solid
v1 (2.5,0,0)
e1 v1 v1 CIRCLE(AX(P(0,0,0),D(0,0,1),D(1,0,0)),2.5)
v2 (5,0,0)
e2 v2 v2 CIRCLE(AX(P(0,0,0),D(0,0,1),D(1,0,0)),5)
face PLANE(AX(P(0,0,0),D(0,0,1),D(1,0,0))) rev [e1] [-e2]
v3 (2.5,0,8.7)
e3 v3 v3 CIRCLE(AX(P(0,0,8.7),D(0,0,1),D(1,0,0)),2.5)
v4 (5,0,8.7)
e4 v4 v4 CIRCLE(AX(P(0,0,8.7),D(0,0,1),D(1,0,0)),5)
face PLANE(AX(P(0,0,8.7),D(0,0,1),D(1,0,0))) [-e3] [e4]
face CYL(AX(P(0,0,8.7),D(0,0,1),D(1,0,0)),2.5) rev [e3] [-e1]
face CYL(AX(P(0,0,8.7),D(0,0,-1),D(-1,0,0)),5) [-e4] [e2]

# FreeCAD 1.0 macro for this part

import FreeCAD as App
import Part
import Sketcher
from FreeCAD import Vector
Q = App.Units.Quantity

doc = App.newDocument("Part")
body = doc.addObject("PartDesign::Body", "Body")

# Sketch on XY plane
sketch1 = doc.addObject("Sketcher::SketchObject", "Sketch")
body.addObject(sketch1)
sketch1.AttachmentSupport = (doc.XY_Plane, [""])
sketch1.MapMode = "FlatFace"
sketch1.addGeometry(Part.Circle(Vector(0, 0, 0), Vector(0, 0, 1), 5), False)
sketch1.addConstraint(Sketcher.Constraint("Coincident", 0, 3, -1, 1))
sketch1.addConstraint(Sketcher.Constraint("Diameter", 0, Q("10 mm")))
pad1 = doc.addObject("PartDesign::Pad", "Pad")
body.addObject(pad1)
pad1.Profile = sketch1
pad1.Length = 8.7

# Sketch on XY plane
sketch2 = doc.addObject("Sketcher::SketchObject", "Sketch001")
body.addObject(sketch2)
sketch2.AttachmentSupport = (doc.XY_Plane, [""])
sketch2.MapMode = "FlatFace"
sketch2.AttachmentOffset = App.Placement(Vector(0, 0, 8.7), App.Rotation())
sketch2.addGeometry(Part.Circle(Vector(0, 0, 0), Vector(0, 0, 1), 2.5), False)
sketch2.addConstraint(Sketcher.Constraint("Coincident", 0, 3, -1, 1))
sketch2.addConstraint(Sketcher.Constraint("Diameter", 0, Q("5 mm")))
doc.recompute()
hole = doc.addObject("PartDesign::Hole", "Hole")
body.addObject(hole)
hole.Profile = sketch2
hole.ThreadType = "None"
hole.Diameter = 5
hole.DepthType = "Dimension"
hole.Depth = 8.7
hole.DrillPoint = "Flat"

doc.recompute()
